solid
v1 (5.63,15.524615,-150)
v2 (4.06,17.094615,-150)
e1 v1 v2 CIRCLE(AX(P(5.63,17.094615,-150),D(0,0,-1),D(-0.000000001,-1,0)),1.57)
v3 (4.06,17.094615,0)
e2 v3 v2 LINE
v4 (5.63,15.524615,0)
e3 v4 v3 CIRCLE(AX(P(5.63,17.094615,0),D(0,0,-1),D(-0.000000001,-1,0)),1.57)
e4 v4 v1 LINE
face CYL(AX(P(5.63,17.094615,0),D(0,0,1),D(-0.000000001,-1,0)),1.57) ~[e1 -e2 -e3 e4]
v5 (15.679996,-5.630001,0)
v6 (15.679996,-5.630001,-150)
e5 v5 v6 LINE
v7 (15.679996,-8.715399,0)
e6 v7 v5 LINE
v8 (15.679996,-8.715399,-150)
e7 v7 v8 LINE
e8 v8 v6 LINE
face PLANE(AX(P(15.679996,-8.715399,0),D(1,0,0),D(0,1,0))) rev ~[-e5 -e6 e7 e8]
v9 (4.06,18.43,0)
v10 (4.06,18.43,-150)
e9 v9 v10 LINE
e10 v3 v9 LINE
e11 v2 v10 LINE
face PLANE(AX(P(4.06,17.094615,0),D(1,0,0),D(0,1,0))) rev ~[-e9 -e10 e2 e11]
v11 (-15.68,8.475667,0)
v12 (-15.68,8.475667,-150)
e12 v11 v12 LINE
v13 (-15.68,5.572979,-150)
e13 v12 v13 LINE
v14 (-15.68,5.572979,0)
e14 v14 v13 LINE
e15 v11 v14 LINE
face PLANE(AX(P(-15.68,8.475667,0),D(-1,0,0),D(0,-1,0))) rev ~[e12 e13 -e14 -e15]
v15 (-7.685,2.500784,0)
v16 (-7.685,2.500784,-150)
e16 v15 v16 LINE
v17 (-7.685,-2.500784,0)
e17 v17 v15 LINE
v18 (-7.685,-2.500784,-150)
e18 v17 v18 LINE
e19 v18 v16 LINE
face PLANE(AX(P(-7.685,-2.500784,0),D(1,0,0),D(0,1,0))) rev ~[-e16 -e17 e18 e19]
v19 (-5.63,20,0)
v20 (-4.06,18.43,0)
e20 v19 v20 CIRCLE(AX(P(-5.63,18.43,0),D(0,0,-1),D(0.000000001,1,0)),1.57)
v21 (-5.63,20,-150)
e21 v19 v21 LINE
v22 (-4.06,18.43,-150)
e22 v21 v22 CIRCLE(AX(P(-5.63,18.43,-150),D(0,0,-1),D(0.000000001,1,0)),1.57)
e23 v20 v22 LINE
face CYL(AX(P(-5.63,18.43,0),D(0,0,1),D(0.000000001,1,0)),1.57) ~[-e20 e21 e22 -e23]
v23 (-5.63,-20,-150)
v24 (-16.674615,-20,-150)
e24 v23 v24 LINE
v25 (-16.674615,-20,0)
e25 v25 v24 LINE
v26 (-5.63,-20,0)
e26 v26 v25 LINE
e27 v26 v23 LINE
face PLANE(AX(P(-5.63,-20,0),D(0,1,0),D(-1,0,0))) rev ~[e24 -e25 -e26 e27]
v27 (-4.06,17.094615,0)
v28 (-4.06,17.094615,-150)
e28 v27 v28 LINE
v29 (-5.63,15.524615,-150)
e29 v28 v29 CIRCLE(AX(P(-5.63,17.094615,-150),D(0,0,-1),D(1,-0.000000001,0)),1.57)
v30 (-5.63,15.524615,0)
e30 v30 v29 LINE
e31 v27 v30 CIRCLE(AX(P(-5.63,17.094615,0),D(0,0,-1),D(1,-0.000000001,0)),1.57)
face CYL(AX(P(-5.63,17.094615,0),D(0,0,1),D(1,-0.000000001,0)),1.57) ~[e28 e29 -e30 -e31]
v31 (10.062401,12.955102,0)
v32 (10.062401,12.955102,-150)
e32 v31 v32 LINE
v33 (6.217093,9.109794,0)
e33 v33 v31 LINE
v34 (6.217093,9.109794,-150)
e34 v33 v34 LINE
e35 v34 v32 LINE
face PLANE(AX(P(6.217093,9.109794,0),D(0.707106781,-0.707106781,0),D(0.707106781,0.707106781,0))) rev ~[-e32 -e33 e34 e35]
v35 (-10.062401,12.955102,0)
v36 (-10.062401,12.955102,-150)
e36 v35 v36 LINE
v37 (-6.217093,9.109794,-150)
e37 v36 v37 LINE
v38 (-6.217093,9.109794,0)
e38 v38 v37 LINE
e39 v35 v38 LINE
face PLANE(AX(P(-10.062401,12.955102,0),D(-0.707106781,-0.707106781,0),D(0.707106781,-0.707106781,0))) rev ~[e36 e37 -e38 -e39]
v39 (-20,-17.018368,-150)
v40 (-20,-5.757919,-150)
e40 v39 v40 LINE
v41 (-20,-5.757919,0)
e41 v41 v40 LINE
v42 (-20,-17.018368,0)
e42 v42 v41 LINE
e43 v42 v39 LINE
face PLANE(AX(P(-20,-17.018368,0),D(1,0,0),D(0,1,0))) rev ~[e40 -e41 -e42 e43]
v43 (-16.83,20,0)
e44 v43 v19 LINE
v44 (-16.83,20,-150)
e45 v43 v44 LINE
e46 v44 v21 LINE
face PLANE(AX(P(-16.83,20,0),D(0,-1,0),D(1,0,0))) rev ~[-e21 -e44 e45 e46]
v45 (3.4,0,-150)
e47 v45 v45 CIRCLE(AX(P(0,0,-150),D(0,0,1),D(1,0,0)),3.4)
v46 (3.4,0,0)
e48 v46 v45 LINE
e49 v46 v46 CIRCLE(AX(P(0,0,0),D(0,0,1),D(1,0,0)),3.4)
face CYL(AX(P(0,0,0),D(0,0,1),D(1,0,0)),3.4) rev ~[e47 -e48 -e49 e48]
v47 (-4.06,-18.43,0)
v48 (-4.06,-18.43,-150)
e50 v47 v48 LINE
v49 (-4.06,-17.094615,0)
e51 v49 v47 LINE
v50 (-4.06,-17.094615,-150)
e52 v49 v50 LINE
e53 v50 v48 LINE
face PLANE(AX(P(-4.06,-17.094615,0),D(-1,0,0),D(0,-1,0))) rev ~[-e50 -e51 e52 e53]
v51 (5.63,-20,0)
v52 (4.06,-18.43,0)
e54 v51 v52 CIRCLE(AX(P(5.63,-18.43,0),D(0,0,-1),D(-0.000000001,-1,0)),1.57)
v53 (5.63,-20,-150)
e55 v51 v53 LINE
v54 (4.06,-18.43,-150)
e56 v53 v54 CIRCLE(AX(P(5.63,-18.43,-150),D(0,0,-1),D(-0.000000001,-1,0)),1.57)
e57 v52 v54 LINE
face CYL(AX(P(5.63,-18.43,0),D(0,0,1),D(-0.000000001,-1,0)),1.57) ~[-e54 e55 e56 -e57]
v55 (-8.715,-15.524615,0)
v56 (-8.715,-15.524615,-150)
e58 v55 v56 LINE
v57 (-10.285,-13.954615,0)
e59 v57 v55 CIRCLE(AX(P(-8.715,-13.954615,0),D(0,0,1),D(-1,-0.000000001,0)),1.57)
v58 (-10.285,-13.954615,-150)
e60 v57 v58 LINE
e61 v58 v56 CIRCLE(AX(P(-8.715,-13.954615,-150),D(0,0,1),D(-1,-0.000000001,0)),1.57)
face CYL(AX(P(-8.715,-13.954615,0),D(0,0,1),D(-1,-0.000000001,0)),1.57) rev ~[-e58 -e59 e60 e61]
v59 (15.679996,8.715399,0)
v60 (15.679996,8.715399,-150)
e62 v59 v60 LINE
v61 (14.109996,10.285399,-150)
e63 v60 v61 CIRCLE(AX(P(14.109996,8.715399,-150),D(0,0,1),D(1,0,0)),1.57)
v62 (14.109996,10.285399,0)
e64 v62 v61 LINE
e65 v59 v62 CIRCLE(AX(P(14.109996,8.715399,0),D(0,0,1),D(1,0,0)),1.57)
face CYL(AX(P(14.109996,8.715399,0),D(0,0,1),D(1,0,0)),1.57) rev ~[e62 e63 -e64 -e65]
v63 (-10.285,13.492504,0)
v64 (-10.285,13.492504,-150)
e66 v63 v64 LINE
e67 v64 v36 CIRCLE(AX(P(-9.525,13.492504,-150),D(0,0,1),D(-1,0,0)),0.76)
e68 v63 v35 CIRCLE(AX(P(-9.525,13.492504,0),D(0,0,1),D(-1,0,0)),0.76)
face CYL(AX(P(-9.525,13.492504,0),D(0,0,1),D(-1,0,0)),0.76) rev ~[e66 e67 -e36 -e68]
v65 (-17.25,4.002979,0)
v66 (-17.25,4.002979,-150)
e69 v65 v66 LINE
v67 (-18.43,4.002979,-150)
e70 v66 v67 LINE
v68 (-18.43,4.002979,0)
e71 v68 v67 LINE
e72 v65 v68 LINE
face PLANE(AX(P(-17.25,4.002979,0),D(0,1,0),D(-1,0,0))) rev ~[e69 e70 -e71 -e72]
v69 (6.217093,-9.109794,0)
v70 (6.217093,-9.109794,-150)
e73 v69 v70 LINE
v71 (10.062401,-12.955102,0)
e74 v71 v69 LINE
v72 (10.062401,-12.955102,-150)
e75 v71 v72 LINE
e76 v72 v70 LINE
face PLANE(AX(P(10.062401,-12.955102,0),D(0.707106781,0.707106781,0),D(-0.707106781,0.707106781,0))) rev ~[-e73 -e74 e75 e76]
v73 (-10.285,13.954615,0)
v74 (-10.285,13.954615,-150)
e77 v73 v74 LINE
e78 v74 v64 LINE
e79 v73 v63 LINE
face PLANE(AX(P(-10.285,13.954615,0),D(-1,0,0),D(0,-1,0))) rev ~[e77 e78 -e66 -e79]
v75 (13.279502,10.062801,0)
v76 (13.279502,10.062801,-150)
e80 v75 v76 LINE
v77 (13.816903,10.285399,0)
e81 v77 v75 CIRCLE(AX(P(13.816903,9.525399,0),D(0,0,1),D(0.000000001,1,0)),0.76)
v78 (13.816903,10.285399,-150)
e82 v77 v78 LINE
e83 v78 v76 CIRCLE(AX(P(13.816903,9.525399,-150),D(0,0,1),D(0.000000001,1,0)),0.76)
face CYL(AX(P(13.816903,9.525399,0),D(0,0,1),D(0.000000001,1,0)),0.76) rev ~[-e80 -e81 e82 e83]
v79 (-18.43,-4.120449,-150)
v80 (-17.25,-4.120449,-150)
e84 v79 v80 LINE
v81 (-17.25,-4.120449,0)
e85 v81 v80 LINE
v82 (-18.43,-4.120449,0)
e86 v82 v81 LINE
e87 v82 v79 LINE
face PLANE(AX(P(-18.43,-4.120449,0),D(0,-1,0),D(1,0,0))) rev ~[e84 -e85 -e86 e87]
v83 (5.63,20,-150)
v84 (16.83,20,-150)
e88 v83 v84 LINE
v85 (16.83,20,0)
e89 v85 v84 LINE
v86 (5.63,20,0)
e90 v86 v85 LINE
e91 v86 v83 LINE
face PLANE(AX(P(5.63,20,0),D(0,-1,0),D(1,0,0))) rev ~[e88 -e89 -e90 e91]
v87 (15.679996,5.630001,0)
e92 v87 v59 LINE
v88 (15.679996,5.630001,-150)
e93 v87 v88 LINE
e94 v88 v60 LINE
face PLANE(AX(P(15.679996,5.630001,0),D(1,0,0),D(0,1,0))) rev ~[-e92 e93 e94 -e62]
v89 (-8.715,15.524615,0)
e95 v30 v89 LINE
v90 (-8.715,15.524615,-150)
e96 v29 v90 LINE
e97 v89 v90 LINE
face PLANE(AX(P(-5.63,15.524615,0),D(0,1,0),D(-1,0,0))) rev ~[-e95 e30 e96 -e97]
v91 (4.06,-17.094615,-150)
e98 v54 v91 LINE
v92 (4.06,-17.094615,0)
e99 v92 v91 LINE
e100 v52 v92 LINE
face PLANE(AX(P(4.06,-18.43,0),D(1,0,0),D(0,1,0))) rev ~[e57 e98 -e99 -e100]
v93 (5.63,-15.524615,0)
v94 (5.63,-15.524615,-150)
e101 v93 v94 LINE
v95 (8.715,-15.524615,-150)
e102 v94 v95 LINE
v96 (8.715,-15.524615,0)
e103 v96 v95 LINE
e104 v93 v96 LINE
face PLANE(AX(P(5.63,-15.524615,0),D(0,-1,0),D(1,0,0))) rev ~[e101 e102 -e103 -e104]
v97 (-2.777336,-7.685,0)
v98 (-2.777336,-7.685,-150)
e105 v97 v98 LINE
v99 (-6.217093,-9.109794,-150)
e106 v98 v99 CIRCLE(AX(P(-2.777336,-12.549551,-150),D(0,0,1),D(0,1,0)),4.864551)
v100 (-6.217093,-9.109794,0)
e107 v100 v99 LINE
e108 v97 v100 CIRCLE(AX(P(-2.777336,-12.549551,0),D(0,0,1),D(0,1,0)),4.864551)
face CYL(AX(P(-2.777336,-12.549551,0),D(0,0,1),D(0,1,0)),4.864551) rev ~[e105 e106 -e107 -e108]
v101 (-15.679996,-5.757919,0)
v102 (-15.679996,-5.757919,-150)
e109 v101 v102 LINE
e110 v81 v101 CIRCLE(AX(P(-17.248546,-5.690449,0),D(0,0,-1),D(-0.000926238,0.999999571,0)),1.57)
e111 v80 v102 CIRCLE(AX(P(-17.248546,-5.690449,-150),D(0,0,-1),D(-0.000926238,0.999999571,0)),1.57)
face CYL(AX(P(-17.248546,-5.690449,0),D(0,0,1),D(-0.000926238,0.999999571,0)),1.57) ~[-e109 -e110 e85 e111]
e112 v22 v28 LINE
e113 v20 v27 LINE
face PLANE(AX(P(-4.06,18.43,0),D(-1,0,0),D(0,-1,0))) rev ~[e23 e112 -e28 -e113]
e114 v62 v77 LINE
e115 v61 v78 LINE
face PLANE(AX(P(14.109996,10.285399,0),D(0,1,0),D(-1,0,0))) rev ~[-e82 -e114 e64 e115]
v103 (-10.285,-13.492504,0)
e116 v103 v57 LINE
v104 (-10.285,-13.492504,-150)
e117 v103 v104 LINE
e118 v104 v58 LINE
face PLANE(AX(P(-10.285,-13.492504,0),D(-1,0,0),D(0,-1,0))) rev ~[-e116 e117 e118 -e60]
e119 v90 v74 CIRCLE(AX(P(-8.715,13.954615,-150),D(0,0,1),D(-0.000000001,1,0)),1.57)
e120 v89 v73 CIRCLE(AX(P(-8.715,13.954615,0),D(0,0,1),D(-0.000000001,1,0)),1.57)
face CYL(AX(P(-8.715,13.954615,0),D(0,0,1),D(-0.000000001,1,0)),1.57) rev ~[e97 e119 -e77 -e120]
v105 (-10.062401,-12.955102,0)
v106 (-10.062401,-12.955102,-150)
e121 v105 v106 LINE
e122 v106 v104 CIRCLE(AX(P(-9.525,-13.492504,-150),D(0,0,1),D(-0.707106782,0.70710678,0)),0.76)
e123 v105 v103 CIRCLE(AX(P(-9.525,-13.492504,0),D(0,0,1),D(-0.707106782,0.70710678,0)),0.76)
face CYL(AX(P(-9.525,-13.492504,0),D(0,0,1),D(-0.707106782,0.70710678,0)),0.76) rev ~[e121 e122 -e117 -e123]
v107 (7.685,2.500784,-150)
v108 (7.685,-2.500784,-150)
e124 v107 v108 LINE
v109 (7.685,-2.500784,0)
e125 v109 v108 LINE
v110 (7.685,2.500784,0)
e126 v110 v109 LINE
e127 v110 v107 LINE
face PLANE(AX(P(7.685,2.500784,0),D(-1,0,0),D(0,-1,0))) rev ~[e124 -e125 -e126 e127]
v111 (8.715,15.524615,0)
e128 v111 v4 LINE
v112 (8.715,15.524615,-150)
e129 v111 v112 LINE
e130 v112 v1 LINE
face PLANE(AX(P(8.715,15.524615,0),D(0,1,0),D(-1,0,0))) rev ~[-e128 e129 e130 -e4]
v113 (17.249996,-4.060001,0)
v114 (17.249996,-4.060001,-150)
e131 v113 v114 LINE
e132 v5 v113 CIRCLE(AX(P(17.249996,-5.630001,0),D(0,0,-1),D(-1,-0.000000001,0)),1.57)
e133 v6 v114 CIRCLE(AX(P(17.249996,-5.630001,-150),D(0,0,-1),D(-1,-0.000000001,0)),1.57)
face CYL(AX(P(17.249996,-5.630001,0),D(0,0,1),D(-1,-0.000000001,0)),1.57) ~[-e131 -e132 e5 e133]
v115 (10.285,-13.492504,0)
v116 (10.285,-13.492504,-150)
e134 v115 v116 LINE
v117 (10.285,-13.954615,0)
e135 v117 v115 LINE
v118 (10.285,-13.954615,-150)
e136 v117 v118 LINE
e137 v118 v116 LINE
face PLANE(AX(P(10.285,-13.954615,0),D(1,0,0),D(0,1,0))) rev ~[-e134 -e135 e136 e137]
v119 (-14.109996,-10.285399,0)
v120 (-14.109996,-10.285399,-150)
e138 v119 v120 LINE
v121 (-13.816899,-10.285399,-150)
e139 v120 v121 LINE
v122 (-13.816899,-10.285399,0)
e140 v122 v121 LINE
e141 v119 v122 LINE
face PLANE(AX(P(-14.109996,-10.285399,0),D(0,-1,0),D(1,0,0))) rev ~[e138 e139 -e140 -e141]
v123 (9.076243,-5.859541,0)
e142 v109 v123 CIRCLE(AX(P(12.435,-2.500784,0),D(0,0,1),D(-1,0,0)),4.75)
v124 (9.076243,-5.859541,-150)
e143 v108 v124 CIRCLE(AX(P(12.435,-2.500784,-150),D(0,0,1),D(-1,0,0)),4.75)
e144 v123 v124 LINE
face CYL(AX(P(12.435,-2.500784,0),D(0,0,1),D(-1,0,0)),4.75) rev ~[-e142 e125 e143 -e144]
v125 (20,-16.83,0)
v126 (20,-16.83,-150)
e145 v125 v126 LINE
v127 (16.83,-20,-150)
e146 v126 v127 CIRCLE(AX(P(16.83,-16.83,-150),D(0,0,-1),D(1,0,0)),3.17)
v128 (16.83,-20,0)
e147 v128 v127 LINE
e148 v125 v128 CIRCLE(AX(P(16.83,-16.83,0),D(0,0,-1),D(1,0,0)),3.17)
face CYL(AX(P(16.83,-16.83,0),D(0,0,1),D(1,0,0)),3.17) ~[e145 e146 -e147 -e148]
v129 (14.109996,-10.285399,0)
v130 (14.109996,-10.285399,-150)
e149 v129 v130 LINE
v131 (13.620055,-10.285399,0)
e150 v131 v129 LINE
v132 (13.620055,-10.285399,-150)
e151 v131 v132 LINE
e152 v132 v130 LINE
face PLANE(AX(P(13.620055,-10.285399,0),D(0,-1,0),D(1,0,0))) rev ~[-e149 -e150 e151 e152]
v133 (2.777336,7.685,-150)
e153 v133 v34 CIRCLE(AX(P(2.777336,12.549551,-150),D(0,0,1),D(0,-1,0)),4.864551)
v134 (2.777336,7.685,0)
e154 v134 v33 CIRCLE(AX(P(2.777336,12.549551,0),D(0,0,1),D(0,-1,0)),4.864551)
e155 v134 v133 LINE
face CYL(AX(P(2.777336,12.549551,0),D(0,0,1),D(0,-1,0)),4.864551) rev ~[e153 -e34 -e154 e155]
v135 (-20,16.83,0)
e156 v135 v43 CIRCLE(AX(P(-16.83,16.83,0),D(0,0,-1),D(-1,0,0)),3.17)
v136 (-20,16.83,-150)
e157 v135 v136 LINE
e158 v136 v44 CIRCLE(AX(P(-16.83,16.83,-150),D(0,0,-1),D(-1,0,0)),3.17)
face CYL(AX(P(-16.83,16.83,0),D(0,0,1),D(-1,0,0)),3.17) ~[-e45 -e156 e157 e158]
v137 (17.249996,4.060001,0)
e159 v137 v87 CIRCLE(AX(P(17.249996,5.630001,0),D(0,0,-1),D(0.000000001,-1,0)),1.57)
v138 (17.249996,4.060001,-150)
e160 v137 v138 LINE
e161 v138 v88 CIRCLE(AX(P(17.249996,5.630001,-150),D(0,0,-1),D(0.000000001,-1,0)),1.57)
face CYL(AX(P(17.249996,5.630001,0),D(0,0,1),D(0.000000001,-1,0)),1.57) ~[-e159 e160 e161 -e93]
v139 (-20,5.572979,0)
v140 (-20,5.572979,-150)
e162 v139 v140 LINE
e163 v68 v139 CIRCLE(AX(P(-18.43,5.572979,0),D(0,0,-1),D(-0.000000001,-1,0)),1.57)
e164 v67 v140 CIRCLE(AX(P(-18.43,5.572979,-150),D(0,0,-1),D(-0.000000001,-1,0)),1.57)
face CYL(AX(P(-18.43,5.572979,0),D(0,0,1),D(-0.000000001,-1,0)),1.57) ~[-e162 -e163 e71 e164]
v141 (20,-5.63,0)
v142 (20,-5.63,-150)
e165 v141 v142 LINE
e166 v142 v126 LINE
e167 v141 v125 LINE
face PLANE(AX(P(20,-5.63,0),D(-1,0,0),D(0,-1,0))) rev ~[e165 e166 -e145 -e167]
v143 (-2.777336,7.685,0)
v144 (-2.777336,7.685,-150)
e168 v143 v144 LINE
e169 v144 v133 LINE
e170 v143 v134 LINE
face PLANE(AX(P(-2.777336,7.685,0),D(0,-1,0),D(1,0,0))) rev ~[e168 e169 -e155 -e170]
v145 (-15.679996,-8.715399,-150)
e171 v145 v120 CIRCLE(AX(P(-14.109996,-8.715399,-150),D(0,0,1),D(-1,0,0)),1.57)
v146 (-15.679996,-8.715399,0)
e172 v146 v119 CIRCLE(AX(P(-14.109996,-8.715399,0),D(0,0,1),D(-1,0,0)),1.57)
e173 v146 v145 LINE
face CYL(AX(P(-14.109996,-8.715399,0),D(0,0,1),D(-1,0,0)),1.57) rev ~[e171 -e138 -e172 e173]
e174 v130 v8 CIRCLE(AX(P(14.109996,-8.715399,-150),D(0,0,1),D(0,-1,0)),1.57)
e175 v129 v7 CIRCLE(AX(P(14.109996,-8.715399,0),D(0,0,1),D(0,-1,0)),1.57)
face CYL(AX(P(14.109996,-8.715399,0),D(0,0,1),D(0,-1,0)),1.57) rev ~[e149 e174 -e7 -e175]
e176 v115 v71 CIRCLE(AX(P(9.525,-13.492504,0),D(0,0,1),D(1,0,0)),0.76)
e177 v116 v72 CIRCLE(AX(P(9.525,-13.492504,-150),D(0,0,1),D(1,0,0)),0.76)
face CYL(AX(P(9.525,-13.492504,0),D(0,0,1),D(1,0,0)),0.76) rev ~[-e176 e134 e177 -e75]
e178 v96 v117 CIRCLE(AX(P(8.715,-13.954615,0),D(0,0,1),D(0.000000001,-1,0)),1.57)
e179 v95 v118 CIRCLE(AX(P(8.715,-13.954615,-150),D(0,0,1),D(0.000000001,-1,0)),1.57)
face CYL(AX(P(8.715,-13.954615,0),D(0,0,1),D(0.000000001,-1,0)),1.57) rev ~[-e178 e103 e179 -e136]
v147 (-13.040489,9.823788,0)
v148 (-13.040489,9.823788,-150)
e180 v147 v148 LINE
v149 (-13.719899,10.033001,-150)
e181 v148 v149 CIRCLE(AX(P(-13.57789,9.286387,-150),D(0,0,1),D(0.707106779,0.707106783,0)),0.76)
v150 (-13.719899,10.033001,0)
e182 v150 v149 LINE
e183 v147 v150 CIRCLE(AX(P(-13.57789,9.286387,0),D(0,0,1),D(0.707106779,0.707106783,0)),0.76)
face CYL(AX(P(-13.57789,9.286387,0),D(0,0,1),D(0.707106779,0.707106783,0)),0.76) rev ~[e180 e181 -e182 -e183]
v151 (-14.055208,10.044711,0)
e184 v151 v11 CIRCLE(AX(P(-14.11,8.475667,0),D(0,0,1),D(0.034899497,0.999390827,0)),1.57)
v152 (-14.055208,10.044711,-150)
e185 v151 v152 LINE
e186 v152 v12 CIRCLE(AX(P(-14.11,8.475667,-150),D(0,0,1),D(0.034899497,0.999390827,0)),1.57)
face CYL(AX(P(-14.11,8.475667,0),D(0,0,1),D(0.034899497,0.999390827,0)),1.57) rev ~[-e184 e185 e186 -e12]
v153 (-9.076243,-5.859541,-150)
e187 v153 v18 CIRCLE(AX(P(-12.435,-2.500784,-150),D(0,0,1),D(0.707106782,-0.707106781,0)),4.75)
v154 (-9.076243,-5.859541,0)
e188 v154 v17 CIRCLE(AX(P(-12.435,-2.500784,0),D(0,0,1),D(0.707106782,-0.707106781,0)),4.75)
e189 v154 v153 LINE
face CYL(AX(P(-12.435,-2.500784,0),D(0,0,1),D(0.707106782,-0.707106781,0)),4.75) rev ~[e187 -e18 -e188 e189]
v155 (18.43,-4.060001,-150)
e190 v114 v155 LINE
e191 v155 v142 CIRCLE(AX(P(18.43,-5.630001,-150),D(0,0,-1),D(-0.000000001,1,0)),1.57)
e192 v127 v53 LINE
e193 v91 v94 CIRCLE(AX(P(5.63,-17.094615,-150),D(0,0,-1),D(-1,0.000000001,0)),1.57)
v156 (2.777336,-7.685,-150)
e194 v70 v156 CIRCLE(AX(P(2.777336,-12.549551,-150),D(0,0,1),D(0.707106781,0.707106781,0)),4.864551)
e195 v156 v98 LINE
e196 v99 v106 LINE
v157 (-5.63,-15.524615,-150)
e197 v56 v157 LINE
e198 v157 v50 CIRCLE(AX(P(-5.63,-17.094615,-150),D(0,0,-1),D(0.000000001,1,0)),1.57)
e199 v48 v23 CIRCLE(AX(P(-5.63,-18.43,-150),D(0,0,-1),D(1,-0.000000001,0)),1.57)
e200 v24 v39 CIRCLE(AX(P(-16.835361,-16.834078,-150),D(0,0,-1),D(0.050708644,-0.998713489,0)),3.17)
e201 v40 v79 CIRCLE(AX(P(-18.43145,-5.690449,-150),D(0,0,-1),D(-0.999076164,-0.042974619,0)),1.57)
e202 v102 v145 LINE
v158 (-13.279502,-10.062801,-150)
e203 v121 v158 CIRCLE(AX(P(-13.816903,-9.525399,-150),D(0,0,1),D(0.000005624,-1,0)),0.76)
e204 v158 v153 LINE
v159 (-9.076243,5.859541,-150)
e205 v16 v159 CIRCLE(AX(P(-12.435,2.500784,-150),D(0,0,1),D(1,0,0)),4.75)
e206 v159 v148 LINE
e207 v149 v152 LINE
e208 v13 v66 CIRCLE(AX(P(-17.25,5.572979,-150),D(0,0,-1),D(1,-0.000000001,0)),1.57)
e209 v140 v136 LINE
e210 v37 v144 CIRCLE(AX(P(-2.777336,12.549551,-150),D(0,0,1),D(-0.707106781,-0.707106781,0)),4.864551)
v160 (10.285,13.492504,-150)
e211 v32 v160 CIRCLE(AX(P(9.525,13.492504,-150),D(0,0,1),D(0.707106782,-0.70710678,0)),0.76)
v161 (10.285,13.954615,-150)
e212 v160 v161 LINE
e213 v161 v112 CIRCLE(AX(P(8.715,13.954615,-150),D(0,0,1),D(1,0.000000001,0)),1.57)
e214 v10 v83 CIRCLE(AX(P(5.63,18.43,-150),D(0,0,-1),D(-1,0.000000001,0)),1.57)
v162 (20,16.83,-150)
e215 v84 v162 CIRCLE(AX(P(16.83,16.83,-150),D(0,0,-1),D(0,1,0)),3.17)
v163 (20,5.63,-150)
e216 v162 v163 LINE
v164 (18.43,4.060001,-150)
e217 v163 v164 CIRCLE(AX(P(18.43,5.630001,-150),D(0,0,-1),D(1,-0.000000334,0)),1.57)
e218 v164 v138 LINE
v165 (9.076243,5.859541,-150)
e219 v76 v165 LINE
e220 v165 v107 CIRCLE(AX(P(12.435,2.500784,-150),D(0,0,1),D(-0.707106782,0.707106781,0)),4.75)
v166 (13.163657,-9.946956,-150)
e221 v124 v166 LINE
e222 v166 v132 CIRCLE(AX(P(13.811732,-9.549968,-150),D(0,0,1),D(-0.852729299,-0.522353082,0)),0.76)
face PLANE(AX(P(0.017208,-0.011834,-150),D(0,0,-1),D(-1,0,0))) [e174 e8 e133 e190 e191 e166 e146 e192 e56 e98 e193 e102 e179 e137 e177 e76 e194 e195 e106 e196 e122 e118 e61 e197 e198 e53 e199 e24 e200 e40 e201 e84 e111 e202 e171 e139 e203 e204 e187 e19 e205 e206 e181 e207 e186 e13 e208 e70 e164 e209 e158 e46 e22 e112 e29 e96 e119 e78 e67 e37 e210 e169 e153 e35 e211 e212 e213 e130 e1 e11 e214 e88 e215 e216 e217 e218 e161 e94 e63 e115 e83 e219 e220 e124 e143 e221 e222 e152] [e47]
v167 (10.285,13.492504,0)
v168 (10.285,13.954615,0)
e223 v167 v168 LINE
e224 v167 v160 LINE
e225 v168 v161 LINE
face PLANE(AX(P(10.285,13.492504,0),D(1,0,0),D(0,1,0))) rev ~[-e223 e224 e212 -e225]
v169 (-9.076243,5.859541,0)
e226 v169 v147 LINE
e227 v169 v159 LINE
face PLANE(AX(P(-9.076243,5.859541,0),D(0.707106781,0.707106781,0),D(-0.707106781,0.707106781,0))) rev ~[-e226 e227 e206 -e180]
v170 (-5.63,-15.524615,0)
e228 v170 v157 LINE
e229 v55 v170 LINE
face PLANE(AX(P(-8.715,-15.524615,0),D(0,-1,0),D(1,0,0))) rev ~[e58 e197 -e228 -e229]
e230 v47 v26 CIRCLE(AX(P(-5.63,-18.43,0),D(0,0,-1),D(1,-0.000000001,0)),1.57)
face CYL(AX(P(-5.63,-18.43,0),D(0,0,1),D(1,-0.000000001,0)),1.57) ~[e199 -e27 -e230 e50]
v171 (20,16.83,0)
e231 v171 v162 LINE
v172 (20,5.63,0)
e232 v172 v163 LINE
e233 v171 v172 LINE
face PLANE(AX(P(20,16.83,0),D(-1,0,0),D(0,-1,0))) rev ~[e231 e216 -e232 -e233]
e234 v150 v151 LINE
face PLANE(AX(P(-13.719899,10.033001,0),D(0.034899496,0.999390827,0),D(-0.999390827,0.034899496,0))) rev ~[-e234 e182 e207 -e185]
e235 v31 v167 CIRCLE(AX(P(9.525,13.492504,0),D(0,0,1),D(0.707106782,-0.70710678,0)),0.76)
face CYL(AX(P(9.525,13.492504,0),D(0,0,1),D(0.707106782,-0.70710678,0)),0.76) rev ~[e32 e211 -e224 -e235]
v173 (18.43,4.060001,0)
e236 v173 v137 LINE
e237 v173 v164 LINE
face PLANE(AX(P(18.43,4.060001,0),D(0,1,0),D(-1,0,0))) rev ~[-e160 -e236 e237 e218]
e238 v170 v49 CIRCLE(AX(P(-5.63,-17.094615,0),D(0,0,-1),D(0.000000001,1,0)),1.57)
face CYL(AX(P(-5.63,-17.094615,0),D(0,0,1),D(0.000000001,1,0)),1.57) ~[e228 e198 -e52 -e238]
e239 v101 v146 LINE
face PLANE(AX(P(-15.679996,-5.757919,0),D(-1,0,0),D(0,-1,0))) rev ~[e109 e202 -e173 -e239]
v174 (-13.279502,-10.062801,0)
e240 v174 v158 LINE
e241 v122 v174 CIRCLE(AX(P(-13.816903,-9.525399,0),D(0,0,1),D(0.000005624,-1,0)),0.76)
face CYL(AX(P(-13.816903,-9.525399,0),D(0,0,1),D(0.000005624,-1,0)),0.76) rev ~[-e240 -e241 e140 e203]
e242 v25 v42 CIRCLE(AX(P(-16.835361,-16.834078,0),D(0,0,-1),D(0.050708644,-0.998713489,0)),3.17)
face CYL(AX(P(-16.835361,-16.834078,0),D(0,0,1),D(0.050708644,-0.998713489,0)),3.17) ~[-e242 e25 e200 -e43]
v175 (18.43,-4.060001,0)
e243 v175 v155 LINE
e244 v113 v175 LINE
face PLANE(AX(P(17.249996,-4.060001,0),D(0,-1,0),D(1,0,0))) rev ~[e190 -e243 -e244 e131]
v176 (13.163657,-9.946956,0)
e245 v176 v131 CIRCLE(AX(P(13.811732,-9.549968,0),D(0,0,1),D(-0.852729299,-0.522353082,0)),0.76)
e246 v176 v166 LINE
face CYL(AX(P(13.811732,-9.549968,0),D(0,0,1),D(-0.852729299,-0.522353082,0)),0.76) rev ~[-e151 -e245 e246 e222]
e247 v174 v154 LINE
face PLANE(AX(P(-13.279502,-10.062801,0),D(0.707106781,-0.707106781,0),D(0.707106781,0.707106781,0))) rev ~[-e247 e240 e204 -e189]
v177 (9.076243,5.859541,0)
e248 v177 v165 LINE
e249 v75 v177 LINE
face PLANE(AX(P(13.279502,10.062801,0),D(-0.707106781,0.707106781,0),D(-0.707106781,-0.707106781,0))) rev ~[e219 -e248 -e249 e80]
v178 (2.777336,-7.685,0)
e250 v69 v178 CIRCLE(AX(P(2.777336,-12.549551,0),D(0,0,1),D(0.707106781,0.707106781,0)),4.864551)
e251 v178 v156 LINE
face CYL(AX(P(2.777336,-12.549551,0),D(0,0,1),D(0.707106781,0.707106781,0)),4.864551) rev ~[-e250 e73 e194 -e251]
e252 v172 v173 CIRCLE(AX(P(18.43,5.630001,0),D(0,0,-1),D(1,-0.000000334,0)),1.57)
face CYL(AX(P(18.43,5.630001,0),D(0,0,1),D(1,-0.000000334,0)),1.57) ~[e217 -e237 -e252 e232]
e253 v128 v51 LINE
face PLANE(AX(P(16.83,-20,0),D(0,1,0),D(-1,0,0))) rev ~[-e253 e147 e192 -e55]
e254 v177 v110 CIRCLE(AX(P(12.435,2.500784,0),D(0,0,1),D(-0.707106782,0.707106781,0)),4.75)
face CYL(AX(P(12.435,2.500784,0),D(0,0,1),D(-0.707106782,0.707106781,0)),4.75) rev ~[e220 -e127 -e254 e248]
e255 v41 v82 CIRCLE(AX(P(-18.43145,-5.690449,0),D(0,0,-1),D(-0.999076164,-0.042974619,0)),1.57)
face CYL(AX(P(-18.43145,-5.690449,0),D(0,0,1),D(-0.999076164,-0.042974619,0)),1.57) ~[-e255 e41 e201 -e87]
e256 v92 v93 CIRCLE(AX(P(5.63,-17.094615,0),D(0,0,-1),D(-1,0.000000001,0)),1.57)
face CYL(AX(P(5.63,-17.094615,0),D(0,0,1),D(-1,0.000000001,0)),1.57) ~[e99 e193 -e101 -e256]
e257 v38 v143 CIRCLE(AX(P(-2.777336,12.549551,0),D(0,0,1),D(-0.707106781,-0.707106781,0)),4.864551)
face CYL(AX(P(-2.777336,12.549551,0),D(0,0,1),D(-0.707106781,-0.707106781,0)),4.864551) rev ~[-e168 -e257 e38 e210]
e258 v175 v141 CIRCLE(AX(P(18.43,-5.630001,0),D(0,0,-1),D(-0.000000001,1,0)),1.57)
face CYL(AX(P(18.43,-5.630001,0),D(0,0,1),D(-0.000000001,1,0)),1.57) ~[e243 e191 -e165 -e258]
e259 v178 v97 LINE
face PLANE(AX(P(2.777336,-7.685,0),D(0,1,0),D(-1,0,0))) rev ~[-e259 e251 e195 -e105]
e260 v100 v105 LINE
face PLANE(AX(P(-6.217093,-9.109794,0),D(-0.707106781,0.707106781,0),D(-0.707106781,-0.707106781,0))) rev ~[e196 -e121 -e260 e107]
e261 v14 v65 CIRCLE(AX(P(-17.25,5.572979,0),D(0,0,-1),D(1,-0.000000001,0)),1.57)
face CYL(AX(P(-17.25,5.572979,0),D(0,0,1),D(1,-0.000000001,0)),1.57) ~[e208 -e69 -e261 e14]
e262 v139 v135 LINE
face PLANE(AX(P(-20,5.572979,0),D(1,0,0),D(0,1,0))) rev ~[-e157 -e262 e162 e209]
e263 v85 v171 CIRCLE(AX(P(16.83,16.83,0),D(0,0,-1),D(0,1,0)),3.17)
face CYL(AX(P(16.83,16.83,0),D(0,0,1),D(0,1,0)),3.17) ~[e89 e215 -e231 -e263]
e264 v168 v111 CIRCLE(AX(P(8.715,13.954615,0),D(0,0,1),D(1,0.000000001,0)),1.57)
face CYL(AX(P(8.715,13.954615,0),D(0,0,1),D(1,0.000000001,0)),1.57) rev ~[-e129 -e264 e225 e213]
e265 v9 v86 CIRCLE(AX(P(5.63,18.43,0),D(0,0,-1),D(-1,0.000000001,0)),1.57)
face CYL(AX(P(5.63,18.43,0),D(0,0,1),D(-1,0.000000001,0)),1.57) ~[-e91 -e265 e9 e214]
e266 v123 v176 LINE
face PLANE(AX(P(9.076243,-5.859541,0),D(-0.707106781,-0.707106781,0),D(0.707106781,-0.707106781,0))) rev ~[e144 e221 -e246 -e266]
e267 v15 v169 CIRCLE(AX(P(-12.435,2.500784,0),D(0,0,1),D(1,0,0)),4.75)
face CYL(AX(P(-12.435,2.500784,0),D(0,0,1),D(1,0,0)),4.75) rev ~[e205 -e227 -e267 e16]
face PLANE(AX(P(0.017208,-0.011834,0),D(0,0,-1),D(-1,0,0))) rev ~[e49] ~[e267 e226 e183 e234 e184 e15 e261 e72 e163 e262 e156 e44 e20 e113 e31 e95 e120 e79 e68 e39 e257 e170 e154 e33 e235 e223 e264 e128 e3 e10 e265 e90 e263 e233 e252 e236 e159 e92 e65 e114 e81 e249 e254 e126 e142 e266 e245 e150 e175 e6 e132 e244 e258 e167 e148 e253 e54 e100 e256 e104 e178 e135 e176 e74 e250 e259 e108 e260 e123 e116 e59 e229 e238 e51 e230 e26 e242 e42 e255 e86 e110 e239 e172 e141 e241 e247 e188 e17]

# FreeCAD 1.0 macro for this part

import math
import FreeCAD as App
import Part
import Sketcher
from FreeCAD import Vector
Q = App.Units.Quantity

doc = App.newDocument("Part")
body = doc.addObject("PartDesign::Body", "Body")

# Sketch on XY plane
sketch1 = body.newObject("Sketcher::SketchObject", "Sketch")
sketch1.AttachmentSupport = (doc.getObject("XY_Plane"), [""])
sketch1.MapMode = "FlatFace"
sketch1.addGeometry([
    Part.LineSegment(Vector(-5.63, -15.524615, 0), Vector(-8.715, -15.524615, 0)),  # 0
    Part.ArcOfCircle(Part.Circle(Vector(-8.715, -13.954615, 0), Vector(0, 0, 1), 1.57), math.radians(-180), math.radians(-90)),  # 1
    Part.LineSegment(Vector(-10.285, -13.954615, 0), Vector(-10.285, -13.492504, 0)),  # 2
    Part.ArcOfCircle(Part.Circle(Vector(-9.525, -13.492504, 0), Vector(0, 0, 1), 0.76), math.radians(135), math.radians(180)),  # 3
    Part.LineSegment(Vector(-10.062401, -12.955102, 0), Vector(-6.217093, -9.109794, 0)),  # 4
    Part.ArcOfCircle(Part.Circle(Vector(-2.777336, -12.549551, 0), Vector(0, 0, 1), 4.864551), math.radians(90), math.radians(135)),  # 5
    Part.LineSegment(Vector(-2.777336, -7.685, 0), Vector(2.777336, -7.685, 0)),  # 6
    Part.ArcOfCircle(Part.Circle(Vector(2.777336, -12.549551, 0), Vector(0, 0, 1), 4.864551), math.radians(45), math.radians(90)),  # 7
    Part.LineSegment(Vector(6.217093, -9.109794, 0), Vector(10.062401, -12.955102, 0)),  # 8
    Part.ArcOfCircle(Part.Circle(Vector(9.525, -13.492504, 0), Vector(0, 0, 1), 0.76), math.radians(0), math.radians(45)),  # 9
    Part.LineSegment(Vector(10.285, -13.492504, 0), Vector(10.285, -13.954615, 0)),  # 10
    Part.ArcOfCircle(Part.Circle(Vector(8.715, -13.954615, 0), Vector(0, 0, 1), 1.57), math.radians(-90), math.radians(0)),  # 11
    Part.LineSegment(Vector(8.715, -15.524615, 0), Vector(5.63, -15.524615, 0)),  # 12
    Part.ArcOfCircle(Part.Circle(Vector(5.63, -17.094615, 0), Vector(0, 0, 1), 1.57), math.radians(90), math.radians(180)),  # 13
    Part.LineSegment(Vector(4.06, -17.094615, 0), Vector(4.06, -18.43, 0)),  # 14
    Part.ArcOfCircle(Part.Circle(Vector(5.63, -18.43, 0), Vector(0, 0, 1), 1.57), math.radians(-180), math.radians(-90)),  # 15
    Part.LineSegment(Vector(5.63, -20, 0), Vector(16.83, -20, 0)),  # 16
    Part.ArcOfCircle(Part.Circle(Vector(16.83, -16.83, 0), Vector(0, 0, 1), 3.17), math.radians(-90), math.radians(0)),  # 17
    Part.LineSegment(Vector(20, -16.83, 0), Vector(20, -5.63, 0)),  # 18
    Part.ArcOfCircle(Part.Circle(Vector(18.43, -5.630001, 0), Vector(0, 0, 1), 1.57), math.radians(0.000019), math.radians(90)),  # 19
    Part.LineSegment(Vector(18.43, -4.060001, 0), Vector(17.249996, -4.060001, 0)),  # 20
    Part.ArcOfCircle(Part.Circle(Vector(17.249996, -5.630001, 0), Vector(0, 0, 1), 1.57), math.radians(90), math.radians(180)),  # 21
    Part.LineSegment(Vector(15.679996, -5.630001, 0), Vector(15.679996, -8.715399, 0)),  # 22
    Part.ArcOfCircle(Part.Circle(Vector(14.109996, -8.715399, 0), Vector(0, 0, 1), 1.57), math.radians(-90), math.radians(0)),  # 23
    Part.LineSegment(Vector(14.109996, -10.285399, 0), Vector(13.620055, -10.285399, 0)),  # 24
    Part.ArcOfCircle(Part.Circle(Vector(13.811732, -9.549968, 0), Vector(0, 0, 1), 0.76), math.radians(-148.509776), math.radians(-104.608114)),  # 25
    Part.LineSegment(Vector(13.163657, -9.946956, 0), Vector(9.076243, -5.859541, 0)),  # 26
    Part.ArcOfCircle(Part.Circle(Vector(12.435, -2.500784, 0), Vector(0, 0, 1), 4.75), math.radians(-180), math.radians(-135)),  # 27
    Part.LineSegment(Vector(7.685, -2.500784, 0), Vector(7.685, 2.500784, 0)),  # 28
    Part.ArcOfCircle(Part.Circle(Vector(12.435, 2.500784, 0), Vector(0, 0, 1), 4.75), math.radians(135), math.radians(180)),  # 29
    Part.LineSegment(Vector(9.076243, 5.859541, 0), Vector(13.279502, 10.062801, 0)),  # 30
    Part.ArcOfCircle(Part.Circle(Vector(13.816903, 9.525399, 0), Vector(0, 0, 1), 0.76), math.radians(90), math.radians(135)),  # 31
    Part.LineSegment(Vector(13.816903, 10.285399, 0), Vector(14.109996, 10.285399, 0)),  # 32
    Part.ArcOfCircle(Part.Circle(Vector(14.109996, 8.715399, 0), Vector(0, 0, 1), 1.57), math.radians(0), math.radians(90)),  # 33
    Part.LineSegment(Vector(15.679996, 8.715399, 0), Vector(15.679996, 5.630001, 0)),  # 34
    Part.ArcOfCircle(Part.Circle(Vector(17.249996, 5.630001, 0), Vector(0, 0, 1), 1.57), math.radians(180), math.radians(270)),  # 35
    Part.LineSegment(Vector(17.249996, 4.060001, 0), Vector(18.43, 4.060001, 0)),  # 36
    Part.ArcOfCircle(Part.Circle(Vector(18.43, 5.630001, 0), Vector(0, 0, 1), 1.57), math.radians(-90), math.radians(-0.000019)),  # 37
    Part.LineSegment(Vector(20, 5.63, 0), Vector(20, 16.83, 0)),  # 38
    Part.ArcOfCircle(Part.Circle(Vector(16.83, 16.83, 0), Vector(0, 0, 1), 3.17), math.radians(0), math.radians(90)),  # 39
    Part.LineSegment(Vector(16.83, 20, 0), Vector(5.63, 20, 0)),  # 40
    Part.ArcOfCircle(Part.Circle(Vector(5.63, 18.43, 0), Vector(0, 0, 1), 1.57), math.radians(90), math.radians(180)),  # 41
    Part.LineSegment(Vector(4.06, 18.43, 0), Vector(4.06, 17.094615, 0)),  # 42
    Part.ArcOfCircle(Part.Circle(Vector(5.63, 17.094615, 0), Vector(0, 0, 1), 1.57), math.radians(-180), math.radians(-90)),  # 43
    Part.LineSegment(Vector(5.63, 15.524615, 0), Vector(8.715, 15.524615, 0)),  # 44
    Part.ArcOfCircle(Part.Circle(Vector(8.715, 13.954615, 0), Vector(0, 0, 1), 1.57), math.radians(0), math.radians(90)),  # 45
    Part.LineSegment(Vector(10.285, 13.954615, 0), Vector(10.285, 13.492504, 0)),  # 46
    Part.ArcOfCircle(Part.Circle(Vector(9.525, 13.492504, 0), Vector(0, 0, 1), 0.76), math.radians(-45), math.radians(0)),  # 47
    Part.LineSegment(Vector(10.062401, 12.955102, 0), Vector(6.217093, 9.109794, 0)),  # 48
    Part.ArcOfCircle(Part.Circle(Vector(2.777336, 12.549551, 0), Vector(0, 0, 1), 4.864551), math.radians(-90), math.radians(-45)),  # 49
    Part.LineSegment(Vector(2.777336, 7.685, 0), Vector(-2.777336, 7.685, 0)),  # 50
    Part.ArcOfCircle(Part.Circle(Vector(-2.777336, 12.549551, 0), Vector(0, 0, 1), 4.864551), math.radians(-135), math.radians(-90)),  # 51
    Part.LineSegment(Vector(-6.217093, 9.109794, 0), Vector(-10.062401, 12.955102, 0)),  # 52
    Part.ArcOfCircle(Part.Circle(Vector(-9.525, 13.492504, 0), Vector(0, 0, 1), 0.76), math.radians(180), math.radians(225)),  # 53
    Part.LineSegment(Vector(-10.285, 13.492504, 0), Vector(-10.285, 13.954615, 0)),  # 54
    Part.ArcOfCircle(Part.Circle(Vector(-8.715, 13.954615, 0), Vector(0, 0, 1), 1.57), math.radians(90), math.radians(180)),  # 55
    Part.LineSegment(Vector(-8.715, 15.524615, 0), Vector(-5.63, 15.524615, 0)),  # 56
    Part.ArcOfCircle(Part.Circle(Vector(-5.63, 17.094615, 0), Vector(0, 0, 1), 1.57), math.radians(-90), math.radians(0)),  # 57
    Part.LineSegment(Vector(-4.06, 17.094615, 0), Vector(-4.06, 18.43, 0)),  # 58
    Part.ArcOfCircle(Part.Circle(Vector(-5.63, 18.43, 0), Vector(0, 0, 1), 1.57), math.radians(0), math.radians(90)),  # 59
    Part.LineSegment(Vector(-5.63, 20, 0), Vector(-16.83, 20, 0)),  # 60
    Part.ArcOfCircle(Part.Circle(Vector(-16.83, 16.83, 0), Vector(0, 0, 1), 3.17), math.radians(90), math.radians(180)),  # 61
    Part.LineSegment(Vector(-20, 16.83, 0), Vector(-20, 5.572979, 0)),  # 62
    Part.ArcOfCircle(Part.Circle(Vector(-18.43, 5.572979, 0), Vector(0, 0, 1), 1.57), math.radians(-180), math.radians(-90)),  # 63
    Part.LineSegment(Vector(-18.43, 4.002979, 0), Vector(-17.25, 4.002979, 0)),  # 64
    Part.ArcOfCircle(Part.Circle(Vector(-17.25, 5.572979, 0), Vector(0, 0, 1), 1.57), math.radians(-90), math.radians(0)),  # 65
    Part.LineSegment(Vector(-15.68, 5.572979, 0), Vector(-15.68, 8.475667, 0)),  # 66
    Part.ArcOfCircle(Part.Circle(Vector(-14.11, 8.475667, 0), Vector(0, 0, 1), 1.57), math.radians(88), math.radians(180)),  # 67
    Part.LineSegment(Vector(-14.055208, 10.044711, 0), Vector(-13.719899, 10.033001, 0)),  # 68
    Part.ArcOfCircle(Part.Circle(Vector(-13.57789, 9.286387, 0), Vector(0, 0, 1), 0.76), math.radians(45), math.radians(100.769233)),  # 69
    Part.LineSegment(Vector(-13.040489, 9.823788, 0), Vector(-9.076243, 5.859541, 0)),  # 70
    Part.ArcOfCircle(Part.Circle(Vector(-12.435, 2.500784, 0), Vector(0, 0, 1), 4.75), math.radians(0), math.radians(45)),  # 71
    Part.LineSegment(Vector(-7.685, 2.500784, 0), Vector(-7.685, -2.500784, 0)),  # 72
    Part.ArcOfCircle(Part.Circle(Vector(-12.435, -2.500784, 0), Vector(0, 0, 1), 4.75), math.radians(-45), math.radians(0)),  # 73
    Part.LineSegment(Vector(-9.076243, -5.859541, 0), Vector(-13.279502, -10.062801, 0)),  # 74
    Part.ArcOfCircle(Part.Circle(Vector(-13.816903, -9.525399, 0), Vector(0, 0, 1), 0.76), math.radians(-89.999678), math.radians(-45)),  # 75
    Part.LineSegment(Vector(-13.816899, -10.285399, 0), Vector(-14.109996, -10.285399, 0)),  # 76
    Part.ArcOfCircle(Part.Circle(Vector(-14.109996, -8.715399, 0), Vector(0, 0, 1), 1.57), math.radians(180), math.radians(270)),  # 77
    Part.LineSegment(Vector(-15.679996, -8.715399, 0), Vector(-15.679996, -5.757919, 0)),  # 78
    Part.ArcOfCircle(Part.Circle(Vector(-17.248546, -5.690449, 0), Vector(0, 0, 1), 1.57), math.radians(-2.463042), math.radians(90.05307)),  # 79
    Part.LineSegment(Vector(-17.25, -4.120449, 0), Vector(-18.43, -4.120449, 0)),  # 80
    Part.ArcOfCircle(Part.Circle(Vector(-18.43145, -5.690449, 0), Vector(0, 0, 1), 1.57), math.radians(89.947068), math.radians(182.463023)),  # 81
    Part.LineSegment(Vector(-20, -5.757919, 0), Vector(-20, -17.018368, 0)),  # 82
    Part.ArcOfCircle(Part.Circle(Vector(-16.835361, -16.834078, 0), Vector(0, 0, 1), 3.17), math.radians(-176.667196), math.radians(-87.093362)),  # 83
    Part.LineSegment(Vector(-16.674615, -20, 0), Vector(-5.63, -20, 0)),  # 84
    Part.ArcOfCircle(Part.Circle(Vector(-5.63, -18.43, 0), Vector(0, 0, 1), 1.57), math.radians(-90), math.radians(0)),  # 85
    Part.LineSegment(Vector(-4.06, -18.43, 0), Vector(-4.06, -17.094615, 0)),  # 86
    Part.ArcOfCircle(Part.Circle(Vector(-5.63, -17.094615, 0), Vector(0, 0, 1), 1.57), math.radians(0), math.radians(90)),  # 87
    Part.Circle(Vector(0, 0, 0), Vector(0, 0, 1), 3.4),  # 88
], False)
sketch1.addConstraint([
    Sketcher.Constraint("Tangent", 0, 2, 1, 2),
    Sketcher.Constraint("Tangent", 1, 1, 2, 1),
    Sketcher.Constraint("Tangent", 2, 2, 3, 2),
    Sketcher.Constraint("Tangent", 3, 1, 4, 1),
    Sketcher.Constraint("Tangent", 4, 2, 5, 2),
    Sketcher.Constraint("Tangent", 5, 1, 6, 1),
    Sketcher.Constraint("Tangent", 6, 2, 7, 2),
    Sketcher.Constraint("Tangent", 7, 1, 8, 1),
    Sketcher.Constraint("Tangent", 8, 2, 9, 2),
    Sketcher.Constraint("Tangent", 9, 1, 10, 1),
    Sketcher.Constraint("Tangent", 10, 2, 11, 2),
    Sketcher.Constraint("Tangent", 11, 1, 12, 1),
    Sketcher.Constraint("Tangent", 12, 2, 13, 1),
    Sketcher.Constraint("Tangent", 13, 2, 14, 1),
    Sketcher.Constraint("Tangent", 14, 2, 15, 1),
    Sketcher.Constraint("Tangent", 15, 2, 16, 1),
    Sketcher.Constraint("Tangent", 16, 2, 17, 1),
    Sketcher.Constraint("Tangent", 17, 2, 18, 1),
    Sketcher.Constraint("Tangent", 18, 2, 19, 1),
    Sketcher.Constraint("Tangent", 19, 2, 20, 1),
    Sketcher.Constraint("Tangent", 20, 2, 21, 1),
    Sketcher.Constraint("Tangent", 21, 2, 22, 1),
    Sketcher.Constraint("Tangent", 22, 2, 23, 2),
    Sketcher.Constraint("Tangent", 23, 1, 24, 1),
    Sketcher.Constraint("Coincident", 24, 2, 25, 2),
    Sketcher.Constraint("Coincident", 25, 1, 26, 1),
    Sketcher.Constraint("Tangent", 26, 2, 27, 2),
    Sketcher.Constraint("Tangent", 27, 1, 28, 1),
    Sketcher.Constraint("Tangent", 28, 2, 29, 2),
    Sketcher.Constraint("Tangent", 29, 1, 30, 1),
    Sketcher.Constraint("Tangent", 30, 2, 31, 2),
    Sketcher.Constraint("Tangent", 31, 1, 32, 1),
    Sketcher.Constraint("Tangent", 32, 2, 33, 2),
    Sketcher.Constraint("Tangent", 33, 1, 34, 1),
    Sketcher.Constraint("Tangent", 34, 2, 35, 1),
    Sketcher.Constraint("Tangent", 35, 2, 36, 1),
    Sketcher.Constraint("Tangent", 36, 2, 37, 1),
    Sketcher.Constraint("Tangent", 37, 2, 38, 1),
    Sketcher.Constraint("Tangent", 38, 2, 39, 1),
    Sketcher.Constraint("Tangent", 39, 2, 40, 1),
    Sketcher.Constraint("Tangent", 40, 2, 41, 1),
    Sketcher.Constraint("Tangent", 41, 2, 42, 1),
    Sketcher.Constraint("Tangent", 42, 2, 43, 1),
    Sketcher.Constraint("Tangent", 43, 2, 44, 1),
    Sketcher.Constraint("Tangent", 44, 2, 45, 2),
    Sketcher.Constraint("Tangent", 45, 1, 46, 1),
    Sketcher.Constraint("Tangent", 46, 2, 47, 2),
    Sketcher.Constraint("Tangent", 47, 1, 48, 1),
    Sketcher.Constraint("Tangent", 48, 2, 49, 2),
    Sketcher.Constraint("Tangent", 49, 1, 50, 1),
    Sketcher.Constraint("Tangent", 50, 2, 51, 2),
    Sketcher.Constraint("Tangent", 51, 1, 52, 1),
    Sketcher.Constraint("Tangent", 52, 2, 53, 2),
    Sketcher.Constraint("Tangent", 53, 1, 54, 1),
    Sketcher.Constraint("Tangent", 54, 2, 55, 2),
    Sketcher.Constraint("Tangent", 55, 1, 56, 1),
    Sketcher.Constraint("Tangent", 56, 2, 57, 1),
    Sketcher.Constraint("Tangent", 57, 2, 58, 1),
    Sketcher.Constraint("Tangent", 58, 2, 59, 1),
    Sketcher.Constraint("Tangent", 59, 2, 60, 1),
    Sketcher.Constraint("Tangent", 60, 2, 61, 1),
    Sketcher.Constraint("Tangent", 61, 2, 62, 1),
    Sketcher.Constraint("Tangent", 62, 2, 63, 1),
    Sketcher.Constraint("Tangent", 63, 2, 64, 1),
    Sketcher.Constraint("Tangent", 64, 2, 65, 1),
    Sketcher.Constraint("Tangent", 65, 2, 66, 1),
    Sketcher.Constraint("Tangent", 66, 2, 67, 2),
    Sketcher.Constraint("Tangent", 67, 1, 68, 1),
    Sketcher.Constraint("Coincident", 68, 2, 69, 2),
    Sketcher.Constraint("Tangent", 69, 1, 70, 1),
    Sketcher.Constraint("Tangent", 70, 2, 71, 2),
    Sketcher.Constraint("Tangent", 71, 1, 72, 1),
    Sketcher.Constraint("Tangent", 72, 2, 73, 2),
    Sketcher.Constraint("Tangent", 73, 1, 74, 1),
    Sketcher.Constraint("Tangent", 74, 2, 75, 2),
    Sketcher.Constraint("Coincident", 75, 1, 76, 1),
    Sketcher.Constraint("Tangent", 76, 2, 77, 2),
    Sketcher.Constraint("Tangent", 77, 1, 78, 1),
    Sketcher.Constraint("Coincident", 78, 2, 79, 1),
    Sketcher.Constraint("Coincident", 79, 2, 80, 1),
    Sketcher.Constraint("Coincident", 80, 2, 81, 1),
    Sketcher.Constraint("Coincident", 81, 2, 82, 1),
    Sketcher.Constraint("Coincident", 82, 2, 83, 1),
    Sketcher.Constraint("Coincident", 83, 2, 84, 1),
    Sketcher.Constraint("Tangent", 84, 2, 85, 1),
    Sketcher.Constraint("Tangent", 85, 2, 86, 1),
    Sketcher.Constraint("Tangent", 86, 2, 87, 1),
    Sketcher.Constraint("Tangent", 87, 2, 0, 1),
    Sketcher.Constraint("Horizontal", 0),
    Sketcher.Constraint("Vertical", 2),
    Sketcher.Constraint("Horizontal", 6),
    Sketcher.Constraint("Vertical", 10),
    Sketcher.Constraint("Horizontal", 12),
    Sketcher.Constraint("Vertical", 14),
    Sketcher.Constraint("Horizontal", 16),
    Sketcher.Constraint("Vertical", 18),
    Sketcher.Constraint("Horizontal", 20),
    Sketcher.Constraint("Vertical", 22),
    Sketcher.Constraint("Horizontal", 24),
    Sketcher.Constraint("Vertical", 28),
    Sketcher.Constraint("Horizontal", 32),
    Sketcher.Constraint("Vertical", 34),
    Sketcher.Constraint("Horizontal", 36),
    Sketcher.Constraint("Vertical", 38),
    Sketcher.Constraint("Horizontal", 40),
    Sketcher.Constraint("Vertical", 42),
    Sketcher.Constraint("Horizontal", 44),
    Sketcher.Constraint("Vertical", 46),
    Sketcher.Constraint("Horizontal", 50),
    Sketcher.Constraint("Vertical", 54),
    Sketcher.Constraint("Horizontal", 56),
    Sketcher.Constraint("Vertical", 58),
    Sketcher.Constraint("Horizontal", 60),
    Sketcher.Constraint("Vertical", 62),
    Sketcher.Constraint("Horizontal", 64),
    Sketcher.Constraint("Vertical", 66),
    Sketcher.Constraint("Vertical", 72),
    Sketcher.Constraint("Horizontal", 76),
    Sketcher.Constraint("Vertical", 78),
    Sketcher.Constraint("Horizontal", 80),
    Sketcher.Constraint("Vertical", 82),
    Sketcher.Constraint("Horizontal", 84),
    Sketcher.Constraint("Vertical", 86),
    Sketcher.Constraint("Coincident", 88, 3, -1, 1),
    Sketcher.Constraint("Equal", 5, 7),
    Sketcher.Constraint("Equal", 3, 9),
    Sketcher.Constraint("Equal", 1, 11),
    Sketcher.Constraint("Equal", 11, 13),
    Sketcher.Constraint("Equal", 13, 15),
    Sketcher.Constraint("Equal", 15, 19),
    Sketcher.Constraint("Equal", 19, 21),
    Sketcher.Constraint("Equal", 21, 23),
    Sketcher.Constraint("Equal", 9, 25),
    Sketcher.Constraint("Equal", 27, 29),
    Sketcher.Constraint("Equal", 25, 31),
    Sketcher.Constraint("Equal", 23, 33),
    Sketcher.Constraint("Equal", 33, 35),
    Sketcher.Constraint("Equal", 35, 37),
    Sketcher.Constraint("Equal", 17, 39),
    Sketcher.Constraint("Equal", 37, 41),
    Sketcher.Constraint("Equal", 41, 43),
    Sketcher.Constraint("Equal", 43, 45),
    Sketcher.Constraint("Equal", 31, 47),
    Sketcher.Constraint("Equal", 7, 49),
    Sketcher.Constraint("Equal", 49, 51),
    Sketcher.Constraint("Equal", 47, 53),
    Sketcher.Constraint("Equal", 45, 55),
    Sketcher.Constraint("Equal", 55, 57),
    Sketcher.Constraint("Equal", 57, 59),
    Sketcher.Constraint("Equal", 39, 61),
    Sketcher.Constraint("Equal", 59, 63),
    Sketcher.Constraint("Equal", 63, 65),
    Sketcher.Constraint("Equal", 65, 67),
    Sketcher.Constraint("Equal", 53, 69),
    Sketcher.Constraint("Equal", 29, 71),
    Sketcher.Constraint("Equal", 71, 73),
    Sketcher.Constraint("Equal", 69, 75),
    Sketcher.Constraint("Equal", 67, 77),
    Sketcher.Constraint("Equal", 77, 79),
    Sketcher.Constraint("Equal", 79, 81),
    Sketcher.Constraint("Equal", 61, 83),
    Sketcher.Constraint("Equal", 81, 85),
    Sketcher.Constraint("Equal", 85, 87),
    Sketcher.Constraint("Symmetric", 1, 3, 45, 3, -1, 1),
    Sketcher.Constraint("Symmetric", 5, 3, 49, 3, -1, 1),
    Sketcher.Constraint("Symmetric", 9, 3, 53, 3, -1, 1),
    Sketcher.Constraint("Symmetric", 13, 3, 57, 3, -1, 1),
    Sketcher.Constraint("Symmetric", 17, 3, 61, 3, -1, 1),
    Sketcher.Constraint("Symmetric", 27, 3, 71, 3, -1, 1),
    Sketcher.Constraint("Symmetric", 31, 3, 75, 3, -1, 1),
    Sketcher.Constraint("Symmetric", 41, 3, 85, 3, -1, 1),
    Sketcher.Constraint("Symmetric", 3, 3, 9, 3, -2),
    Sketcher.Constraint("Symmetric", 43, 3, 57, 3, -2),
    Sketcher.Constraint("Symmetric", 39, 3, 61, 3, -2),
    Sketcher.Constraint("Symmetric", 23, 3, 77, 3, -2),
    Sketcher.Constraint("Symmetric", 48, 2, 51, 1, -2),
    Sketcher.Constraint("Symmetric", 29, 1, 70, 2, -2),
    Sketcher.Constraint("Symmetric", 26, 2, 73, 1, -2),
    Sketcher.Constraint("Symmetric", 21, 3, 35, 3, -1),
    Sketcher.Constraint("Perpendicular", 4, 8),
    Sketcher.Constraint("Parallel", 8, 26),
    Sketcher.Constraint("Perpendicular", 26, 30),
    Sketcher.Constraint("Horizontal", 78, 2, 81, 2),
    Sketcher.Constraint("Vertical", 64, 2, 79, 2),
    Sketcher.Constraint("Vertical", 63, 2, 80, 2),
    Sketcher.Constraint("Vertical", 62, 2, 81, 2),
    Sketcher.Constraint("Equal", 60, 18),
    Sketcher.Constraint("Diameter", 88, 6.8),
    Sketcher.Constraint("Angle", 68, Q("-2 deg")),
    Sketcher.Constraint("Radius", 1, 1.57),
    Sketcher.Constraint("Radius", 3, 0.76),
    Sketcher.Constraint("Radius", 17, 3.17),
    Sketcher.Constraint("Radius", 27, 4.75),
    Sketcher.Constraint("DistanceX", 16, 1, 16, 2, 11.2),
    Sketcher.Constraint("DistanceY", 15, 2, -1, 1, 20.0),
    Sketcher.Constraint("DistanceX", -1, 1, 17, 2, 20.0),
    Sketcher.Constraint("DistanceX", 64, 1, 64, 2, 1.18),
    Sketcher.Constraint("DistanceX", 0, 2, 0, 1, 3.085),
    Sketcher.Constraint("Radius", 5, 4.864551),
    Sketcher.Constraint("DistanceY", 22, 2, 22, 1, 3.085399),
    Sketcher.Constraint("DistanceX", -1, 1, 27, 3, 12.435),
    Sketcher.Constraint("DistanceY", 5, 1, -1, 1, 7.685),
    Sketcher.Constraint("DistanceY", -1, 1, 68, 2, 10.033001),
    Sketcher.Constraint("DistanceX", 6, 1, 6, 2, 5.554671),
    Sketcher.Constraint("DistanceX", 24, 2, 24, 1, 0.489942),
    Sketcher.Constraint("DistanceY", 2, 1, 2, 2, 0.462111),
    Sketcher.Constraint("DistanceY", 28, 1, 28, 2, 5.001569),
    Sketcher.Constraint("DistanceY", 62, 2, 62, 1, 11.257021),
    Sketcher.Constraint("DistanceY", 78, 1, 78, 2, 2.95748),
    Sketcher.Constraint("DistanceY", 82, 2, 82, 1, 11.260449),
    Sketcher.Constraint("DistanceX", 68, 2, -1, 1, 13.719899),
    Sketcher.Constraint("DistanceX", 75, 1, -1, 1, 13.816899),
    Sketcher.Constraint("DistanceX", 20, 2, 20, 1, 1.180004),
    Sketcher.Constraint("DistanceX", 84, 1, 84, 2, 11.044615),
    Sketcher.Constraint("DistanceX", -1, 1, 25, 3, 13.811732),
    Sketcher.Constraint("DistanceY", 79, 3, -1, 1, 5.690449),
])
pad1 = body.newObject("PartDesign::Pad", "Pad")
pad1.Profile = sketch1
pad1.Length = 150
pad1.Reversed = True

doc.recompute()
